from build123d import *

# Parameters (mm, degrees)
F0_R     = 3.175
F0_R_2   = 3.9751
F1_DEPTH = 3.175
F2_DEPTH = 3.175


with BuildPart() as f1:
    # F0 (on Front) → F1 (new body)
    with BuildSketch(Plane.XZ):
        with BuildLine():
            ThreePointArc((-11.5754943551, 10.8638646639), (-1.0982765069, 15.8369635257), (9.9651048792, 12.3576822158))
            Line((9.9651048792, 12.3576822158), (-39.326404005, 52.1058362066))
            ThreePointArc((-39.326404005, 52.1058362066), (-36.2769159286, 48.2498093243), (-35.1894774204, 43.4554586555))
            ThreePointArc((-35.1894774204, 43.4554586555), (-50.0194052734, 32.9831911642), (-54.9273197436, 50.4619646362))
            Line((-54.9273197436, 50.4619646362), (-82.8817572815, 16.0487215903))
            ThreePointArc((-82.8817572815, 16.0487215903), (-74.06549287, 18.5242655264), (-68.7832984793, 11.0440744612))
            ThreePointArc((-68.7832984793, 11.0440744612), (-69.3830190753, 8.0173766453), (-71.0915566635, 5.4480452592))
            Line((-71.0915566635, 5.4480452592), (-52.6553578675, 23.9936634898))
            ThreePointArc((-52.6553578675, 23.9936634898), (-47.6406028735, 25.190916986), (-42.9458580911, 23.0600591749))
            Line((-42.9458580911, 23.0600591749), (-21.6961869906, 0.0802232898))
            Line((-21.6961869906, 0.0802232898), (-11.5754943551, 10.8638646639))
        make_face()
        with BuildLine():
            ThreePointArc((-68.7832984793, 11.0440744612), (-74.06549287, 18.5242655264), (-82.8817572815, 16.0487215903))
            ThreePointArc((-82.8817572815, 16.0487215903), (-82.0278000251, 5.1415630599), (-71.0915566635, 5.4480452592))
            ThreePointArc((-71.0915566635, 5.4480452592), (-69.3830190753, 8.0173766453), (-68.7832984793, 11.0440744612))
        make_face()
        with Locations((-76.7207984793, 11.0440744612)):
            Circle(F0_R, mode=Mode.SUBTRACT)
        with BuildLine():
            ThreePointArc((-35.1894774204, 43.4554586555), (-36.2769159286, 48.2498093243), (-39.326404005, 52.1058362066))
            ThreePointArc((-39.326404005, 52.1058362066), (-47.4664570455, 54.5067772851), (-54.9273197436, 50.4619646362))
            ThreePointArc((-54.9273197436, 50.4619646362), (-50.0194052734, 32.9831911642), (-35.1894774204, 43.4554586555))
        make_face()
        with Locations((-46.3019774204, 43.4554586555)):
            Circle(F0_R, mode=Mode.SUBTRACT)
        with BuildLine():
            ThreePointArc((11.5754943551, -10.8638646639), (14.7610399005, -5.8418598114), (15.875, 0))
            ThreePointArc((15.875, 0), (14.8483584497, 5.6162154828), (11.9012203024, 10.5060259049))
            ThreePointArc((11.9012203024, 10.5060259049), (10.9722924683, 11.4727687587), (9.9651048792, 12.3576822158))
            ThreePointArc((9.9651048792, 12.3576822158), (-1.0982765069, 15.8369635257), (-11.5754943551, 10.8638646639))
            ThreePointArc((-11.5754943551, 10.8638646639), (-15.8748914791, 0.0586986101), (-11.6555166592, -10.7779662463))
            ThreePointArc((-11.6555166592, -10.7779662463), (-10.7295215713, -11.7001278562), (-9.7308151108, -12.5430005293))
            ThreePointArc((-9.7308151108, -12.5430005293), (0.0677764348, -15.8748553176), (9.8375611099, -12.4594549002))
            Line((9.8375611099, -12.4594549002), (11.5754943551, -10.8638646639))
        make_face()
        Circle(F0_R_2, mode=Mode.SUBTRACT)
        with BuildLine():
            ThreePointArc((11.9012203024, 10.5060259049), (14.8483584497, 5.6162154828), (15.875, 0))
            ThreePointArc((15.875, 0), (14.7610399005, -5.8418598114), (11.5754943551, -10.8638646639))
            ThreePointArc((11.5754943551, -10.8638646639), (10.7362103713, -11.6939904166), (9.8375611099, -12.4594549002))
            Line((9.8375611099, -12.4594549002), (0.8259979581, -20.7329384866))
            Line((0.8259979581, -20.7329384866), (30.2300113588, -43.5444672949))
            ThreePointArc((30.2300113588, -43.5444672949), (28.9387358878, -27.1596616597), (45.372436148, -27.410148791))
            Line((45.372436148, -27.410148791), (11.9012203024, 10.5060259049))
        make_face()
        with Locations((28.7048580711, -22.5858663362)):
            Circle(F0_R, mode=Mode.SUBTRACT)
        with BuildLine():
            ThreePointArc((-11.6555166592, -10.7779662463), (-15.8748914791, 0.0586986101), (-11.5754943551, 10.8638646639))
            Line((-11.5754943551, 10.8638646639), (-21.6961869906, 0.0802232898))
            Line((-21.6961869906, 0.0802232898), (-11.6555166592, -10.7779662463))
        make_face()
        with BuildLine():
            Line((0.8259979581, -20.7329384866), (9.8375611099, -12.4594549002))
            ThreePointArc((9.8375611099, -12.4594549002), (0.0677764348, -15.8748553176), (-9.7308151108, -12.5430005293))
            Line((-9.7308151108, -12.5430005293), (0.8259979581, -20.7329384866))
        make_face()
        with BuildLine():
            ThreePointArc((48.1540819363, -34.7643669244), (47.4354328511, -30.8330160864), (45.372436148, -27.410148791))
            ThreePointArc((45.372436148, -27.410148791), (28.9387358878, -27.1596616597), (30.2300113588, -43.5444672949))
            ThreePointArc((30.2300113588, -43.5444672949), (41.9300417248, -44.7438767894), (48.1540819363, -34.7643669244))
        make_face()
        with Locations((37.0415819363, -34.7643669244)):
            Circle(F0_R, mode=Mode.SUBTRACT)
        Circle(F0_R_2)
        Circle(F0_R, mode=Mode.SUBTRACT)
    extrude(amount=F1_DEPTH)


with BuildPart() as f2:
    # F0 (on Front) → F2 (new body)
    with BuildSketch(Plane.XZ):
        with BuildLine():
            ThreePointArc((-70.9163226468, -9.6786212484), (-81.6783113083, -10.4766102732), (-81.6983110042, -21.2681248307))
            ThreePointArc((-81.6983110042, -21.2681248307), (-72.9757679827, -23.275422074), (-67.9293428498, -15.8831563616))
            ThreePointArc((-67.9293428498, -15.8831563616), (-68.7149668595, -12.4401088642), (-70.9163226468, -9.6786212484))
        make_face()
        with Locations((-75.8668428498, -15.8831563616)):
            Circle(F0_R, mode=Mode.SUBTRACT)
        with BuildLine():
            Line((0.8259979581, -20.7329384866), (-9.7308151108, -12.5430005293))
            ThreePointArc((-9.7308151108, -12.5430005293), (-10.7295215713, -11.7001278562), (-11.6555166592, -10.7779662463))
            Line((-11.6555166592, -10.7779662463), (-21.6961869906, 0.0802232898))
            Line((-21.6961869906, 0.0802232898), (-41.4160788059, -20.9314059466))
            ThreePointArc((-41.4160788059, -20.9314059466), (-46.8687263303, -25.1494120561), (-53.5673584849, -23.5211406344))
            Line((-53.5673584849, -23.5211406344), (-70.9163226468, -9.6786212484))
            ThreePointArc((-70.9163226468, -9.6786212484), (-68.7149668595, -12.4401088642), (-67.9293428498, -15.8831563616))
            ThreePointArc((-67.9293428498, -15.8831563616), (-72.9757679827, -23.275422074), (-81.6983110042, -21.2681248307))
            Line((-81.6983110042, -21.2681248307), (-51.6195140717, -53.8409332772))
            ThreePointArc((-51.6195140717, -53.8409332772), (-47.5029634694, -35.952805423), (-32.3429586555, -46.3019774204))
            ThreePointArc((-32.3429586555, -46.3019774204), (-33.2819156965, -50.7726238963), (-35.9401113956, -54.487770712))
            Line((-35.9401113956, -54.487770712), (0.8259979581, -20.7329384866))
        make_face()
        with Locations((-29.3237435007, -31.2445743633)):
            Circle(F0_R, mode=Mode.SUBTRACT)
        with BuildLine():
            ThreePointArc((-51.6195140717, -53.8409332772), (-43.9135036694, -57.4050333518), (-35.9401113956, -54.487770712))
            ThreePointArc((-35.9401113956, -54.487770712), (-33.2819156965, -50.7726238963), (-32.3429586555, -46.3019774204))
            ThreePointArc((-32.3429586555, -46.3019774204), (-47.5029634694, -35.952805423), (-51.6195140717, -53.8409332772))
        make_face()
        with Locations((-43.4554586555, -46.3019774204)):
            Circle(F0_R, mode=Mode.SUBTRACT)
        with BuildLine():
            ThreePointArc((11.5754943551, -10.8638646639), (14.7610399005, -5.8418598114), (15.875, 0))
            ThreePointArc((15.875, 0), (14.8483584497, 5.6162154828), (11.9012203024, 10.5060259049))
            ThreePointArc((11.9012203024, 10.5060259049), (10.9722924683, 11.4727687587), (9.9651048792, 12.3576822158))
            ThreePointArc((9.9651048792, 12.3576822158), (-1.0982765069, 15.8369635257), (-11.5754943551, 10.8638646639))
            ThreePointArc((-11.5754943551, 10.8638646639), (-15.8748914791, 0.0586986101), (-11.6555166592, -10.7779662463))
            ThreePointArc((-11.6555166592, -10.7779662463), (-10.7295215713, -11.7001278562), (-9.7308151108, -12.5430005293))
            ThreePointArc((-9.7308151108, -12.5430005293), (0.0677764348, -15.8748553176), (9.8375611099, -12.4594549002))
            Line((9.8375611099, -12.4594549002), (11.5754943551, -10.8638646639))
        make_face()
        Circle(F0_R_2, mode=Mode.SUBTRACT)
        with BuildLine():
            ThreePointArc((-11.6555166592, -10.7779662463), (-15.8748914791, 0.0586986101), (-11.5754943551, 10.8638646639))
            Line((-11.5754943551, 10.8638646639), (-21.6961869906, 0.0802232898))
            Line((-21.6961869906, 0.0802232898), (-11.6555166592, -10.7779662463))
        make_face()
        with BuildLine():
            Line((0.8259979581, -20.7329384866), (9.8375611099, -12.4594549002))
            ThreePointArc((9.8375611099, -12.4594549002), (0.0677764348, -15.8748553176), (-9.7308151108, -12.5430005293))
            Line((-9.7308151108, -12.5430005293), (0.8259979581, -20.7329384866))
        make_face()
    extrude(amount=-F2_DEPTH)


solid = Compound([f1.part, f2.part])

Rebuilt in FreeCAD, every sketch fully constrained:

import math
import FreeCAD as App
import Part
import Sketcher
Q = App.Units.Quantity

doc = App.newDocument("Part")
body = doc.addObject("PartDesign::Body", "Body")

# Sketch on XZ plane
sketch1 = body.newObject("Sketcher::SketchObject", "Sketch")
sketch1.AttachmentSupport = (doc.getObject("XZ_Plane"), [""])
sketch1.MapMode = "FlatFace"
sketch1.addGeometry([
    Part.ArcOfCircle(Part.Circle(App.Vector(0, 0, 0), App.Vector(0, 0, 1), 15.875), math.radians(-137.240148), math.radians(-127.804182)),  # 0
    Part.LineSegment(App.Vector(-9.730815, -12.543001, 0), App.Vector(0.825998, -20.732938, 0)),  # 1
    Part.LineSegment(App.Vector(0.825998, -20.732938, 0), App.Vector(30.230011, -43.544467, 0)),  # 2
    Part.ArcOfCircle(Part.Circle(App.Vector(37.041582, -34.764367, 0), App.Vector(0, 0, 1), 11.1125), math.radians(-127.804182), math.radians(0)),  # 3
    Part.ArcOfCircle(Part.Circle(App.Vector(37.041582, -34.764367, 0), App.Vector(0, 0, 1), 11.1125), math.radians(0), math.radians(41.43706)),  # 4
    Part.LineSegment(App.Vector(45.372436, -27.410149, 0), App.Vector(11.90122, 10.506026, 0)),  # 5
    Part.ArcOfCircle(Part.Circle(App.Vector(0, 0, 0), App.Vector(0, 0, 1), 15.875), math.radians(41.43706), math.radians(51.117661)),  # 6
    Part.LineSegment(App.Vector(9.965105, 12.357682, 0), App.Vector(-39.326404, 52.105836, 0)),  # 7
    Part.ArcOfCircle(Part.Circle(App.Vector(-46.301977, 43.455459, 0), App.Vector(0, 0, 1), 11.1125), math.radians(51.117661), math.radians(140.912482)),  # 8
    Part.LineSegment(App.Vector(-54.92732, 50.461965, 0), App.Vector(-82.881757, 16.048722, 0)),  # 9
    Part.ArcOfCircle(Part.Circle(App.Vector(-76.720798, 11.044074, 0), App.Vector(0, 0, 1), 7.9375), math.radians(140.912482), math.radians(315.169523)),  # 10
    Part.LineSegment(App.Vector(-71.091557, 5.448045, 0), App.Vector(-52.655358, 23.993663, 0)),  # 11
    Part.ArcOfCircle(Part.Circle(App.Vector(-48.401534, 17.277216, 0), App.Vector(0, 0, 1), 7.9502), math.radians(46.667478), math.radians(122.34789)),  # 12
    Part.LineSegment(App.Vector(-42.945858, 23.060059, 0), App.Vector(-21.696187, 0.080223, 0)),  # 13
    Part.LineSegment(App.Vector(-21.696187, 0.080223, 0), App.Vector(-11.655517, -10.777966, 0)),  # 14
    Part.Circle(App.Vector(37.041582, -34.764367, 0), App.Vector(0, 0, 1), 3.175),  # 15
    Part.Circle(App.Vector(28.704858, -22.585866, 0), App.Vector(0, 0, 1), 3.175),  # 16
    Part.Circle(App.Vector(0, 0, 0), App.Vector(0, 0, 1), 3.175),  # 17
    Part.ArcOfCircle(Part.Circle(App.Vector(0, 0, 0), App.Vector(0, 0, 1), 15.875), math.radians(-51.706581), math.radians(-43.183561)),  # 18
    Part.LineSegment(App.Vector(9.837561, -12.459455, 0), App.Vector(11.575494, -10.863865, 0)),  # 19
    Part.Circle(App.Vector(-76.720798, 11.044074, 0), App.Vector(0, 0, 1), 3.175),  # 20
    Part.Circle(App.Vector(-46.301977, 43.455459, 0), App.Vector(0, 0, 1), 3.175),  # 21
], False)
sketch1.addConstraint([
    Sketcher.Constraint("Coincident", 0, 2, 1, 1),
    Sketcher.Constraint("Coincident", 1, 2, 2, 1),
    Sketcher.Constraint("Coincident", 2, 2, 3, 1),
    Sketcher.Constraint("Coincident", 3, 2, 4, 1),
    Sketcher.Constraint("Coincident", 4, 2, 5, 1),
    Sketcher.Constraint("Coincident", 5, 2, 6, 1),
    Sketcher.Constraint("Coincident", 6, 2, 7, 1),
    Sketcher.Constraint("Coincident", 7, 2, 8, 1),
    Sketcher.Constraint("Coincident", 8, 2, 9, 1),
    Sketcher.Constraint("Coincident", 9, 2, 10, 1),
    Sketcher.Constraint("Coincident", 10, 2, 11, 1),
    Sketcher.Constraint("Coincident", 11, 2, 12, 2),
    Sketcher.Constraint("Coincident", 12, 1, 13, 1),
    Sketcher.Constraint("Coincident", 13, 2, 14, 1),
    Sketcher.Constraint("Coincident", 14, 2, 0, 1),
    Sketcher.Constraint("Coincident", 18, 1, 19, 1),
    Sketcher.Constraint("Coincident", 19, 2, 18, 2),
    Sketcher.Constraint("Coincident", 0, 3, -1, 1),
    Sketcher.Constraint("Coincident", 6, 3, -1, 1),
    Sketcher.Constraint("Coincident", 17, 3, -1, 1),
    Sketcher.Constraint("Coincident", 18, 3, -1, 1),
    Sketcher.Constraint("Coincident", 4, 3, 3, 3),
    Sketcher.Constraint("Coincident", 15, 3, 3, 3),
    Sketcher.Constraint("Coincident", 20, 3, 10, 3),
    Sketcher.Constraint("Coincident", 21, 3, 8, 3),
    Sketcher.Constraint("Diameter", 15, Q("0.25 in")),
    Sketcher.Constraint("Diameter", 16, Q("0.25 in")),
    Sketcher.Constraint("Diameter", 17, Q("0.25 in")),
    Sketcher.Constraint("Diameter", 20, Q("0.25 in")),
    Sketcher.Constraint("Diameter", 21, Q("0.25 in")),
    Sketcher.Constraint("Radius", 0, Q("0.625 in")),
    Sketcher.Constraint("Radius", 3, Q("0.4375 in")),
    Sketcher.Constraint("Radius", 6, Q("0.625 in")),
    Sketcher.Constraint("Radius", 8, Q("0.4375 in")),
    Sketcher.Constraint("Radius", 10, Q("0.3125 in")),
    Sketcher.Constraint("Radius", 12, Q("0.313 in")),
    Sketcher.Constraint("Radius", 18, Q("0.625 in")),
    Sketcher.Constraint("DistanceY", 5, 2, 6, 2, Q("0.0728999 in")),
    Sketcher.Constraint("DistanceX", 10, 3, -1, 1, 76.720798),
    Sketcher.Constraint("DistanceY", 0, 2, -1, 1, 12.543001),
    Sketcher.Constraint("DistanceY", 3, 3, 16, 3, 12.178501),
    Sketcher.Constraint("DistanceY", 2, 2, 3, 3, 8.7801),
    Sketcher.Constraint("DistanceY", 2, 2, 3, 2, 8.7801),
    Sketcher.Constraint("DistanceX", 9, 2, 10, 2, 11.790201),
    Sketcher.Constraint("DistanceX", 10, 2, 11, 2, 18.436199),
    Sketcher.Constraint("DistanceY", 11, 2, 8, 2, 26.468301),
    Sketcher.Constraint("DistanceX", 11, 2, 12, 1, 9.7095),
    Sketcher.Constraint("DistanceY", 12, 1, 8, 3, 20.395399),
    Sketcher.Constraint("DistanceX", 14, 2, 0, 2, 1.924702),
    Sketcher.Constraint("Distance", 1, 13.36119),
    Sketcher.Constraint("Distance", 11, 26.150208),
    Sketcher.Constraint("DistanceX", -1, 1, 3, 3, 37.041582),
    Sketcher.Constraint("DistanceY", -1, 1, 8, 3, 43.455459),
    Sketcher.Constraint("DistanceX", -1, 1, 16, 3, 28.704858),
    Sketcher.Constraint("DistanceY", 1, 2, -1, 1, 20.732938),
    Sketcher.Constraint("DistanceY", 4, 2, -1, 1, 27.410149),
    Sketcher.Constraint("DistanceX", -1, 1, 5, 2, 11.90122),
    Sketcher.Constraint("DistanceX", 8, 2, -1, 1, 54.92732),
    Sketcher.Constraint("DistanceY", -1, 1, 9, 2, 16.048722),
    Sketcher.Constraint("DistanceX", 12, 1, -1, 1, 42.945858),
    Sketcher.Constraint("DistanceX", -1, 1, 18, 1, 9.837561),
    Sketcher.Constraint("DistanceY", 3, 3, 10, 3, 45.808441),
    Sketcher.Constraint("DistanceX", 12, 3, 7, 2, 9.07513),
    Sketcher.Constraint("DistanceX", 13, 2, 0, 2, 11.965372),
    Sketcher.Constraint("DistanceY", 14, 2, 13, 2, 10.85819),
    Sketcher.Constraint("DistanceY", 18, 1, 19, 2, 1.59559),
])
pad1 = body.newObject("PartDesign::Pad", "Pad")
pad1.Profile = sketch1
pad1.Length = Q("0.125 in")
body2 = doc.addObject("PartDesign::Body", "Body001")

# Sketch on XZ plane
sketch2 = body2.newObject("Sketcher::SketchObject", "Sketch001")
sketch2.AttachmentSupport = (doc.getObject("XZ_Plane001"), [""])
sketch2.MapMode = "FlatFace"
sketch2.addGeometry([
    Part.ArcOfCircle(Part.Circle(App.Vector(-75.866843, -15.883156, 0), App.Vector(0, 0, 1), 7.9375), math.radians(51.414076), math.radians(222.720395)),  # 0
    Part.LineSegment(App.Vector(-81.698311, -21.268125, 0), App.Vector(-51.619514, -53.840933, 0)),  # 1
    Part.ArcOfCircle(Part.Circle(App.Vector(-43.455459, -46.301977, 0), App.Vector(0, 0, 1), 11.1125), math.radians(-137.279605), math.radians(-47.445071)),  # 2
    Part.LineSegment(App.Vector(-35.940111, -54.487771, 0), App.Vector(0.825998, -20.732938, 0)),  # 3
    Part.LineSegment(App.Vector(0.825998, -20.732938, 0), App.Vector(9.837561, -12.459455, 0)),  # 4
    Part.LineSegment(App.Vector(9.837561, -12.459455, 0), App.Vector(11.575494, -10.863865, 0)),  # 5
    Part.ArcOfCircle(Part.Circle(App.Vector(0, 0, 0), App.Vector(0, 0, 1), 15.875), math.radians(-43.183561), math.radians(41.43706)),  # 6
    Part.ArcOfCircle(Part.Circle(App.Vector(0, 0, 0), App.Vector(0, 0, 1), 15.875), math.radians(41.43706), math.radians(51.117661)),  # 7
    Part.ArcOfCircle(Part.Circle(App.Vector(0, 0, 0), App.Vector(0, 0, 1), 15.875), math.radians(51.117661), math.radians(136.816439)),  # 8
    Part.LineSegment(App.Vector(-11.575494, 10.863865, 0), App.Vector(-21.696187, 0.080223, 0)),  # 9
    Part.LineSegment(App.Vector(-21.696187, 0.080223, 0), App.Vector(-41.416079, -20.931406, 0)),  # 10
    Part.ArcOfCircle(Part.Circle(App.Vector(-48.52589, -17.373842, 0), App.Vector(0, 0, 1), 7.9502), math.radians(-129.355561), math.radians(-26.582185)),  # 11
    Part.LineSegment(App.Vector(-53.567358, -23.521141, 0), App.Vector(-70.916323, -9.678621, 0)),  # 12
    Part.Circle(App.Vector(-43.455459, -46.301977, 0), App.Vector(0, 0, 1), 3.175),  # 13
    Part.Circle(App.Vector(-29.323744, -31.244574, 0), App.Vector(0, 0, 1), 3.175),  # 14
    Part.Circle(App.Vector(-75.866843, -15.883156, 0), App.Vector(0, 0, 1), 3.175),  # 15
    Part.Circle(App.Vector(0, 0, 0), App.Vector(0, 0, 1), 3.9751),  # 16
], False)
sketch2.addConstraint([
    Sketcher.Constraint("Coincident", 0, 2, 1, 1),
    Sketcher.Constraint("Coincident", 1, 2, 2, 1),
    Sketcher.Constraint("Coincident", 2, 2, 3, 1),
    Sketcher.Constraint("Coincident", 3, 2, 4, 1),
    Sketcher.Constraint("Coincident", 4, 2, 5, 1),
    Sketcher.Constraint("Coincident", 5, 2, 6, 1),
    Sketcher.Constraint("Coincident", 6, 2, 7, 1),
    Sketcher.Constraint("Coincident", 7, 2, 8, 1),
    Sketcher.Constraint("Coincident", 8, 2, 9, 1),
    Sketcher.Constraint("Coincident", 9, 2, 10, 1),
    Sketcher.Constraint("Coincident", 10, 2, 11, 2),
    Sketcher.Constraint("Coincident", 11, 1, 12, 1),
    Sketcher.Constraint("Coincident", 12, 2, 0, 1),
    Sketcher.Constraint("Coincident", 6, 3, -1, 1),
    Sketcher.Constraint("Coincident", 7, 3, -1, 1),
    Sketcher.Constraint("Coincident", 8, 3, -1, 1),
    Sketcher.Constraint("Coincident", 16, 3, -1, 1),
    Sketcher.Constraint("Coincident", 13, 3, 2, 3),
    Sketcher.Constraint("Coincident", 15, 3, 0, 3),
    Sketcher.Constraint("Diameter", 13, Q("0.25 in")),
    Sketcher.Constraint("Diameter", 14, Q("0.25 in")),
    Sketcher.Constraint("Diameter", 15, Q("0.25 in")),
    Sketcher.Constraint("Diameter", 16, Q("0.313 in")),
    Sketcher.Constraint("Radius", 0, Q("0.3125 in")),
    Sketcher.Constraint("Radius", 2, Q("0.4375 in")),
    Sketcher.Constraint("Radius", 6, Q("0.625 in")),
    Sketcher.Constraint("Radius", 11, Q("0.313 in")),
    Sketcher.Constraint("DistanceY", 6, 2, 7, 2, Q("0.0728999 in")),
    Sketcher.Constraint("DistanceX", 15, 3, 14, 3, 46.543099),
    Sketcher.Constraint("DistanceX", 8, 2, 7, 2, 21.540599),
    Sketcher.Constraint("DistanceY", 11, 1, 11, 3, 6.147298),
    Sketcher.Constraint("DistanceX", 11, 1, 13, 3, 10.1119),
    Sketcher.Constraint("Distance", 4, 12.233511),
    Sketcher.Constraint("DistanceX", 2, 3, -1, 1, 43.455459),
    Sketcher.Constraint("DistanceX", 0, 2, -1, 1, 81.698311),
    Sketcher.Constraint("DistanceX", 2, 2, -1, 1, 35.940111),
    Sketcher.Constraint("DistanceY", 2, 2, -1, 1, 54.487771),
    Sketcher.Constraint("DistanceY", 3, 2, -1, 1, 20.732938),
    Sketcher.Constraint("DistanceX", -1, 1, 4, 2, 9.837561),
    Sketcher.Constraint("DistanceX", -1, 1, 6, 2, 11.90122),
    Sketcher.Constraint("DistanceX", 10, 2, -1, 1, 41.416079),
    Sketcher.Constraint("DistanceY", 11, 1, -1, 1, 23.521141),
    Sketcher.Constraint("DistanceY", 12, 2, -1, 1, 9.678621),
    Sketcher.Constraint("DistanceY", 2, 3, 0, 3, 30.418821),
    Sketcher.Constraint("DistanceY", 14, 3, 15, 3, 15.361418),
    Sketcher.Constraint("DistanceX", 0, 2, 0, 3, 5.831468),
    Sketcher.Constraint("DistanceX", 1, 2, 14, 3, 22.295771),
    Sketcher.Constraint("DistanceX", 14, 3, 3, 2, 30.149741),
    Sketcher.Constraint("DistanceY", 4, 2, 5, 2, 1.59559),
    Sketcher.Constraint("DistanceY", 9, 2, 8, 2, 10.783641),
    Sketcher.Constraint("DistanceX", 10, 2, 9, 2, 19.719892),
])
pad2 = body2.newObject("PartDesign::Pad", "Pad001")
pad2.Profile = sketch2
pad2.Length = Q("0.125 in")
pad2.Reversed = True

doc.recompute()
